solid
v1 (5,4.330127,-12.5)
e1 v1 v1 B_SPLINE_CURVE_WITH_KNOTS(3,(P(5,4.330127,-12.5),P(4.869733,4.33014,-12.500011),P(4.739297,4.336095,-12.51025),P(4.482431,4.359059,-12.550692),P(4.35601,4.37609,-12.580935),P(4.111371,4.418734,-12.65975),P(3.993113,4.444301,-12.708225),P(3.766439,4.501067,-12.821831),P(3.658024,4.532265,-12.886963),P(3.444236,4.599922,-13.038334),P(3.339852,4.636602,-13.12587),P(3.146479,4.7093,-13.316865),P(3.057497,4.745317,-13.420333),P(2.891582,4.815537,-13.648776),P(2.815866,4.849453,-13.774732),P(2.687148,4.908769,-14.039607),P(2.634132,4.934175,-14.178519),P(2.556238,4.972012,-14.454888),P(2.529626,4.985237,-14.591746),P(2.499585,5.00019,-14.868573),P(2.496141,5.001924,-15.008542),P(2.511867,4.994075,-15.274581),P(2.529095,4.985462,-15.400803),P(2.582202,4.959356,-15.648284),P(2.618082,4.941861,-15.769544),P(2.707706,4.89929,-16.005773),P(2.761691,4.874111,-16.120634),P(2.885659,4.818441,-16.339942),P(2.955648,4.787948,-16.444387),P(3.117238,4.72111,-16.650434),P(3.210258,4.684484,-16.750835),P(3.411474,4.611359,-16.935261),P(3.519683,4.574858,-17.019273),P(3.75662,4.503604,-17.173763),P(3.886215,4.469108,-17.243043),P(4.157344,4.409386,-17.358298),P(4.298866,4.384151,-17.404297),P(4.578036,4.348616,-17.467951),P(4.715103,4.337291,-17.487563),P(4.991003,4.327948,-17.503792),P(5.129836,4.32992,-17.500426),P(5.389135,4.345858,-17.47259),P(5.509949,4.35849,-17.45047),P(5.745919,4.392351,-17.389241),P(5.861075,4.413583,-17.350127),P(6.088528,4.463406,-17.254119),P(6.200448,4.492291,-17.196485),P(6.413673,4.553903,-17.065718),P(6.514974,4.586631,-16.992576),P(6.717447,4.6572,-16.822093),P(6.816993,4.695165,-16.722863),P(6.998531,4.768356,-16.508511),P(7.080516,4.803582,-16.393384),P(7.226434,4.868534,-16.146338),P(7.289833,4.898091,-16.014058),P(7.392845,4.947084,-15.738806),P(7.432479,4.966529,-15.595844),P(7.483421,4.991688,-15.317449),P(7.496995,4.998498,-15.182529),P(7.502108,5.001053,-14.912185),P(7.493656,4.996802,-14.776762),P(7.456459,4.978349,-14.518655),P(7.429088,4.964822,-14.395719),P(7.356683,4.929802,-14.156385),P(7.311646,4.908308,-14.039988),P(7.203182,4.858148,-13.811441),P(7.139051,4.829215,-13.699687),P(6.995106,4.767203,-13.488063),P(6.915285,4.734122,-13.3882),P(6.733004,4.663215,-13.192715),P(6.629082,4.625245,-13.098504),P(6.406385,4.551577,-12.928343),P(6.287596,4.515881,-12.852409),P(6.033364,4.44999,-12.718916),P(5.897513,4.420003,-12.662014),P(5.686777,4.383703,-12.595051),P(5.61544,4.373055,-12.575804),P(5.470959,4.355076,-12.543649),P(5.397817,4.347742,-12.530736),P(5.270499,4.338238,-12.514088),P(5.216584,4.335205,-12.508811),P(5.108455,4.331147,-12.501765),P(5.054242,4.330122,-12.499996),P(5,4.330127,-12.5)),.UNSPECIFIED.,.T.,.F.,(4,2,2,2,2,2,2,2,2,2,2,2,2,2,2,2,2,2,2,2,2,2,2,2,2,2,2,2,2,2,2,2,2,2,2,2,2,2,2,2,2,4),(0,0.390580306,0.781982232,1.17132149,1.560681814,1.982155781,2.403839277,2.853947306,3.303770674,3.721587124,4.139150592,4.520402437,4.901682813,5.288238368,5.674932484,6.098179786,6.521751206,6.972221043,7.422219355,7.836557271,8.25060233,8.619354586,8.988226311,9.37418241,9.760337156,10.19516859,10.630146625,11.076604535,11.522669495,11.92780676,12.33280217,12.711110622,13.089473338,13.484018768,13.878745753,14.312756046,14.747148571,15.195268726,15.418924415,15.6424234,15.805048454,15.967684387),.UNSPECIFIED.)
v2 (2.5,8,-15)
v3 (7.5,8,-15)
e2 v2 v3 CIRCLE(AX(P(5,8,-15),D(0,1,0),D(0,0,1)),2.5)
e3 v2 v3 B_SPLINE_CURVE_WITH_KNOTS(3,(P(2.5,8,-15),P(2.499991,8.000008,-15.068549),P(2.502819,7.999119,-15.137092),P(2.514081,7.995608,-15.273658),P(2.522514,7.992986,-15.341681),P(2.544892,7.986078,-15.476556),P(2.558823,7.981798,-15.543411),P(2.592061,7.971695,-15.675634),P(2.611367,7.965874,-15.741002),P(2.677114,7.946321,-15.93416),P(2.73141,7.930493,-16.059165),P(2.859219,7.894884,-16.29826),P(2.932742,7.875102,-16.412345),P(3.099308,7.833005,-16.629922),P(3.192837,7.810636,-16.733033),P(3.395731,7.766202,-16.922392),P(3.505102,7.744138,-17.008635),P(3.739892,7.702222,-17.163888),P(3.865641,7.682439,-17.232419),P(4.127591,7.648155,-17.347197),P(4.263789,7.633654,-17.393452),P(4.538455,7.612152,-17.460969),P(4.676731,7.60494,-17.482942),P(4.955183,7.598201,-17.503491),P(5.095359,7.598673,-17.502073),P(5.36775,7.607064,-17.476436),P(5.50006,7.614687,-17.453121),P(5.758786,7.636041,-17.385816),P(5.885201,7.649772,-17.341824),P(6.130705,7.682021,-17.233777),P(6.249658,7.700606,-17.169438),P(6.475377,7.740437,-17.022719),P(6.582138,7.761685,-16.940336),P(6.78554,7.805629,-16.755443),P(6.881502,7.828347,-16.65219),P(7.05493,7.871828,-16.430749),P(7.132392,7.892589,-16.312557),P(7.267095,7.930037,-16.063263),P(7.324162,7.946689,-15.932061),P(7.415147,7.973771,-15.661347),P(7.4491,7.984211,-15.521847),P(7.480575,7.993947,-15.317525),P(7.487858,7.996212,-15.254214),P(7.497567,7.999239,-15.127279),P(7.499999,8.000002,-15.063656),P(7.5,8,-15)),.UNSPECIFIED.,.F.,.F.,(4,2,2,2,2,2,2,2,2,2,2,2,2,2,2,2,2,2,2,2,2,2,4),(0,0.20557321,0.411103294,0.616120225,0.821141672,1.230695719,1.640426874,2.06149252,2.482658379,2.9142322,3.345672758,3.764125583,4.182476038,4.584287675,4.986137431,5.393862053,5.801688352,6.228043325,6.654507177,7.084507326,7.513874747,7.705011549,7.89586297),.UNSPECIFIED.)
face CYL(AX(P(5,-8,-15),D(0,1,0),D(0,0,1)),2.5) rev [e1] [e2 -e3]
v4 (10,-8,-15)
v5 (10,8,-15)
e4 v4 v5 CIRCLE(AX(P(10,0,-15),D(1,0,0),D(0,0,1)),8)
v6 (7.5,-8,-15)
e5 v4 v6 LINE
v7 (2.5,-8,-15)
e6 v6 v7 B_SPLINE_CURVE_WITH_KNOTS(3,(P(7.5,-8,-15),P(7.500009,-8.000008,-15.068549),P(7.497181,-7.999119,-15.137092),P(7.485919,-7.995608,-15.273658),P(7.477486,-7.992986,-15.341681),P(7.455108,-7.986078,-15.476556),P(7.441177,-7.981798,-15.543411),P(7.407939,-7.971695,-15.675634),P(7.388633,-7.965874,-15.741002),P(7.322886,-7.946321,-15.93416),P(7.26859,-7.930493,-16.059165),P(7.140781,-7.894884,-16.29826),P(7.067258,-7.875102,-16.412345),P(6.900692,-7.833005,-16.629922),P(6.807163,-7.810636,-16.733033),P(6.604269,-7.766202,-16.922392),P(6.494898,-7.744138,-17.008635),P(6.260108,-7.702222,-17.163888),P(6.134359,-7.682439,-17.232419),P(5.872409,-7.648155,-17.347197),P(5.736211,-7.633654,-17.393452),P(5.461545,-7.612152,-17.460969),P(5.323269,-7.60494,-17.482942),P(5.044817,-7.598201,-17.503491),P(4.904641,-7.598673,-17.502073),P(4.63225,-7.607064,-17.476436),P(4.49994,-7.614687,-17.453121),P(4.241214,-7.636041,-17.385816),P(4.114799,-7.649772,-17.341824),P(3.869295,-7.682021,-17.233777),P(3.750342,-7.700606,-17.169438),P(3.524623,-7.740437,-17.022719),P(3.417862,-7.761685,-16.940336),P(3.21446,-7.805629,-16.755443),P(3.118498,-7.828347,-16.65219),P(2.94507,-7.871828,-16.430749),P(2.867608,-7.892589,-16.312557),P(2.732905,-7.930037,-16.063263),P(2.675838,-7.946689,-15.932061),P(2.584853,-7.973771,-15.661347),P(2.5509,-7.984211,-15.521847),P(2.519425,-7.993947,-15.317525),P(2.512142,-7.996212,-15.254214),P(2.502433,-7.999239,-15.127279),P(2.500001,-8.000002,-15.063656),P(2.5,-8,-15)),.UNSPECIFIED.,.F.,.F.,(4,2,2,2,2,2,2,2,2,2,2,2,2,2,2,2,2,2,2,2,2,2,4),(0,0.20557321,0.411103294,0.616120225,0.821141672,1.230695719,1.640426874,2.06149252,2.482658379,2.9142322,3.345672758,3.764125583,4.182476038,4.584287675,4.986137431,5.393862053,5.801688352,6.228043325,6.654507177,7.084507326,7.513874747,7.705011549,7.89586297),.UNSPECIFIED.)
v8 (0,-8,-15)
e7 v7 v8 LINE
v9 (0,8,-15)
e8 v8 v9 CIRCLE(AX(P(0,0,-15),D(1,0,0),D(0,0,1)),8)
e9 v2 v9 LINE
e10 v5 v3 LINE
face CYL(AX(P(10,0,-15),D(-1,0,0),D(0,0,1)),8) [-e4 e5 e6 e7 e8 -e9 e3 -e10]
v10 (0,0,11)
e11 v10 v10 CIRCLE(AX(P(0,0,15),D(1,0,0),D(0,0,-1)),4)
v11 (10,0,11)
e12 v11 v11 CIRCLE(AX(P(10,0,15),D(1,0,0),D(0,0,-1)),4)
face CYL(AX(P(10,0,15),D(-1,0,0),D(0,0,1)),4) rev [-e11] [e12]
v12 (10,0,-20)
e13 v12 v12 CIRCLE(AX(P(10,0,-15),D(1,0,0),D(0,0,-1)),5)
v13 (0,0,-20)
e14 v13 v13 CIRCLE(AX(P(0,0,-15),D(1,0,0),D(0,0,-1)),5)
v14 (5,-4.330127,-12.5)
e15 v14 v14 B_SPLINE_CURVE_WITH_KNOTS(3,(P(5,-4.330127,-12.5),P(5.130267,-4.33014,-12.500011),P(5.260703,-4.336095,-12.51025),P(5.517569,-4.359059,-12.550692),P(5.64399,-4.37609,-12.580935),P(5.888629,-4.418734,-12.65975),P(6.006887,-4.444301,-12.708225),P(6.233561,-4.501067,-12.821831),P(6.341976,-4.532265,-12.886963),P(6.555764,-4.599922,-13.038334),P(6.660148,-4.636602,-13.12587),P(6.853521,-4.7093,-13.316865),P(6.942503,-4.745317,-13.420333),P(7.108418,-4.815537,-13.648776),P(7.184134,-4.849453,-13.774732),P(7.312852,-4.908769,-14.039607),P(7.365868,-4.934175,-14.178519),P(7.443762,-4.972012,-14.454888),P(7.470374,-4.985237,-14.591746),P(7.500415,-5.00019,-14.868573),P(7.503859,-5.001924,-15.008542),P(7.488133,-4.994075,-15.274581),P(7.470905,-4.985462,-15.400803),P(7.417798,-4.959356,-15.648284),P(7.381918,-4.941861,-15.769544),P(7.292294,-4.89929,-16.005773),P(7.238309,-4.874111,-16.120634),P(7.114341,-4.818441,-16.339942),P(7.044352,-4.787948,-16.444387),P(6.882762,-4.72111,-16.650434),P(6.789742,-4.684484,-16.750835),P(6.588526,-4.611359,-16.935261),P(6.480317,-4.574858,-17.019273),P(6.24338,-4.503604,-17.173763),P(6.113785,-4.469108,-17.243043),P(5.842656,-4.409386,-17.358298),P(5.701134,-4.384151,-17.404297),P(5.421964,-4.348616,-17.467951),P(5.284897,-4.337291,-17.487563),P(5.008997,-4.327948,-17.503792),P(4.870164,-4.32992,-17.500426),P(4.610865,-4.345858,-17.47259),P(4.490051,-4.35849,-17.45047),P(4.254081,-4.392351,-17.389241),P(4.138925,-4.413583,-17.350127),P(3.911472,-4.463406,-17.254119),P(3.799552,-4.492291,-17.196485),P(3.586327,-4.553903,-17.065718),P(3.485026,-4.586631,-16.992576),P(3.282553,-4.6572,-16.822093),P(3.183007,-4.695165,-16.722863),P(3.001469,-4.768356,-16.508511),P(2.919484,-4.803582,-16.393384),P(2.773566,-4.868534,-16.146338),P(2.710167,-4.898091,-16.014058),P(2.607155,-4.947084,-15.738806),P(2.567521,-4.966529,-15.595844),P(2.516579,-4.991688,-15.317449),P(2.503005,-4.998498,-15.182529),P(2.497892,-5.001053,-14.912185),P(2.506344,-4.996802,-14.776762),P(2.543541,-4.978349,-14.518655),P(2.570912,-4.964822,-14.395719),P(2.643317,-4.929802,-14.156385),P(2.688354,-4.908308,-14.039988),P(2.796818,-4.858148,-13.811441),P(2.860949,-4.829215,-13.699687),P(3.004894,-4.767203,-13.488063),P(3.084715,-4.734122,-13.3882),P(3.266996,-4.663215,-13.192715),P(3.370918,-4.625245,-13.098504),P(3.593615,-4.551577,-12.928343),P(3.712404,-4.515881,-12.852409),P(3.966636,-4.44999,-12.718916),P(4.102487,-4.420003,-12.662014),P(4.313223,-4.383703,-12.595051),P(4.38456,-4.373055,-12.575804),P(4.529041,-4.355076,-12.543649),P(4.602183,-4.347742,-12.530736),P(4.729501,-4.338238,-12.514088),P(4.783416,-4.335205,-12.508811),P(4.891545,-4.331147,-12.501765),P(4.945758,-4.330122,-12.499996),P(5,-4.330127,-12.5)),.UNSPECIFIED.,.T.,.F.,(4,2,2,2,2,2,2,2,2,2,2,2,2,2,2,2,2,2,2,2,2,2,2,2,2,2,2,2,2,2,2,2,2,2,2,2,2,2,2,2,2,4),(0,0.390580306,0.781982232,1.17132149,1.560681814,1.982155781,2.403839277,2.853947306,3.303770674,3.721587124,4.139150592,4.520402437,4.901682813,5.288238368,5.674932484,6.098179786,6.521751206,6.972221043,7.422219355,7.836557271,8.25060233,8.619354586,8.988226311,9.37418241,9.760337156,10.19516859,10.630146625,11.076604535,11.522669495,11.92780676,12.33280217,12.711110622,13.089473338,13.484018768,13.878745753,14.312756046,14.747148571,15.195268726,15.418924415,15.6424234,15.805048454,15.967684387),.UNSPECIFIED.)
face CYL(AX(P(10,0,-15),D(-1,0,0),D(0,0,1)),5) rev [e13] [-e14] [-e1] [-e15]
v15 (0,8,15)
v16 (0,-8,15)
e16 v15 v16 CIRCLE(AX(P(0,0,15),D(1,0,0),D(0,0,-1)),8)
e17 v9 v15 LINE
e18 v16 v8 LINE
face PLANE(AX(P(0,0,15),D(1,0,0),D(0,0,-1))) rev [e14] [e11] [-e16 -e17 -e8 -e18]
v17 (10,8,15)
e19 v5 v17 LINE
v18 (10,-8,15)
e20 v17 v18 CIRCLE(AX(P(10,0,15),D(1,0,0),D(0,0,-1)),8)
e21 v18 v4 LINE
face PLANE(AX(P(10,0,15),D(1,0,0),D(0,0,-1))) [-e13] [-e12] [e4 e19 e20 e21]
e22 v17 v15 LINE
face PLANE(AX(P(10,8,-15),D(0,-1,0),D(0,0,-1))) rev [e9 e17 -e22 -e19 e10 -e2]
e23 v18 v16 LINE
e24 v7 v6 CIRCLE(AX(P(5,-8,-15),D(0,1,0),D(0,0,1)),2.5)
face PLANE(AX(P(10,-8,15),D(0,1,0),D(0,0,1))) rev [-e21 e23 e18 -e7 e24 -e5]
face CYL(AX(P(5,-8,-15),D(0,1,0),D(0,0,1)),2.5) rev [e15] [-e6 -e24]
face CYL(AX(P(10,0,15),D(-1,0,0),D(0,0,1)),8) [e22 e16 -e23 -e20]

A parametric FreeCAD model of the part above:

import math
import FreeCAD as App
import Part
import Sketcher
Q = App.Units.Quantity

doc = App.newDocument("Part")
params = doc.addObject("Spreadsheet::Sheet", "Params")
for row, (alias, value) in enumerate([
    ("sketch1_diameter", "8 mm"),
    ("sketch1_diameter2", "10 mm"),
    ("sketch1_radius", "8 mm"),
    ("sketch1_height", "30 mm"),
    ("pad1_length", "10 mm"),
    ("sketch2_diameter", "5 mm"),
], start=1):
    params.set(f"A{row}", alias)
    params.set(f"B{row}", "=" + value)
    params.setAlias(f"B{row}", alias)

body = doc.addObject("PartDesign::Body", "Body")

# Sketch on YZ plane
sketch1 = body.newObject("Sketcher::SketchObject", "Sketch")
sketch1.AttachmentSupport = (doc.getObject("YZ_Plane"), [""])
sketch1.MapMode = "FlatFace"
sketch1.addGeometry([
    Part.LineSegment(App.Vector(8, -15, 0), App.Vector(8, 15, 0)),  # 0
    Part.ArcOfCircle(Part.Circle(App.Vector(0, 15, 0), App.Vector(0, 0, 1), 8), math.radians(0), math.radians(180)),  # 1
    Part.LineSegment(App.Vector(-8, 15, 0), App.Vector(-8, -15, 0)),  # 2
    Part.ArcOfCircle(Part.Circle(App.Vector(0, -15, 0), App.Vector(0, 0, 1), 8), math.radians(180), math.radians(360)),  # 3
    Part.Circle(App.Vector(0, 15, 0), App.Vector(0, 0, 1), 4),  # 4
    Part.Circle(App.Vector(0, -15, 0), App.Vector(0, 0, 1), 5),  # 5
], False)
sketch1.addConstraint([
    Sketcher.Constraint("Tangent", 0, 2, 1, 1),
    Sketcher.Constraint("Tangent", 1, 2, 2, 1),
    Sketcher.Constraint("Tangent", 2, 2, 3, 1),
    Sketcher.Constraint("Tangent", 3, 2, 0, 1),
    Sketcher.Constraint("Vertical", 0),
    Sketcher.Constraint("Vertical", 2),
    Sketcher.Constraint("Coincident", 4, 3, 1, 3),
    Sketcher.Constraint("Coincident", 5, 3, 3, 3),
    Sketcher.Constraint("Symmetric", 1, 3, 3, 3, -1, 1),
    Sketcher.Constraint("Diameter", 4, Q("8 mm")),
    Sketcher.Constraint("Diameter", 5, Q("10 mm")),
    Sketcher.Constraint("Radius", 1, Q("8 mm")),
    Sketcher.Constraint("DistanceY", 0, 1, 0, 2, Q("30 mm")),
])
sketch1.setExpression("Constraints[9]", "Params.sketch1_diameter")
sketch1.setExpression("Constraints[10]", "Params.sketch1_diameter2")
sketch1.setExpression("Constraints[11]", "Params.sketch1_radius")
sketch1.setExpression("Constraints[12]", "Params.sketch1_height")
pad1 = body.newObject("PartDesign::Pad", "Pad")
pad1.Profile = sketch1
pad1.setExpression("Length", "Params.pad1_length")

# Sketch on XZ plane
sketch2 = body.newObject("Sketcher::SketchObject", "Sketch001")
sketch2.AttachmentSupport = (doc.getObject("XZ_Plane"), [""])
sketch2.MapMode = "FlatFace"
sketch2.AttachmentOffset = App.Placement(App.Vector(0, 0, -8), App.Rotation())
sketch2.addGeometry(Part.Circle(App.Vector(5, -15, 0), App.Vector(0, 0, 1), 2.5), False)
sketch2.addConstraint([
    Sketcher.Constraint("Diameter", 0, Q("5 mm")),
    Sketcher.Constraint("DistanceX", -1, 1, 0, 3, Q("5 mm")),
    Sketcher.Constraint("DistanceY", 0, 3, -1, 1, Q("15 mm")),
])
sketch2.setExpression("Constraints[0]", "Params.sketch2_diameter")
pocket1 = body.newObject("PartDesign::Pocket", "Pocket")
pocket1.Profile = sketch2
pocket1.Type = "ThroughAll"
pocket1.Reversed = True

doc.recompute()
